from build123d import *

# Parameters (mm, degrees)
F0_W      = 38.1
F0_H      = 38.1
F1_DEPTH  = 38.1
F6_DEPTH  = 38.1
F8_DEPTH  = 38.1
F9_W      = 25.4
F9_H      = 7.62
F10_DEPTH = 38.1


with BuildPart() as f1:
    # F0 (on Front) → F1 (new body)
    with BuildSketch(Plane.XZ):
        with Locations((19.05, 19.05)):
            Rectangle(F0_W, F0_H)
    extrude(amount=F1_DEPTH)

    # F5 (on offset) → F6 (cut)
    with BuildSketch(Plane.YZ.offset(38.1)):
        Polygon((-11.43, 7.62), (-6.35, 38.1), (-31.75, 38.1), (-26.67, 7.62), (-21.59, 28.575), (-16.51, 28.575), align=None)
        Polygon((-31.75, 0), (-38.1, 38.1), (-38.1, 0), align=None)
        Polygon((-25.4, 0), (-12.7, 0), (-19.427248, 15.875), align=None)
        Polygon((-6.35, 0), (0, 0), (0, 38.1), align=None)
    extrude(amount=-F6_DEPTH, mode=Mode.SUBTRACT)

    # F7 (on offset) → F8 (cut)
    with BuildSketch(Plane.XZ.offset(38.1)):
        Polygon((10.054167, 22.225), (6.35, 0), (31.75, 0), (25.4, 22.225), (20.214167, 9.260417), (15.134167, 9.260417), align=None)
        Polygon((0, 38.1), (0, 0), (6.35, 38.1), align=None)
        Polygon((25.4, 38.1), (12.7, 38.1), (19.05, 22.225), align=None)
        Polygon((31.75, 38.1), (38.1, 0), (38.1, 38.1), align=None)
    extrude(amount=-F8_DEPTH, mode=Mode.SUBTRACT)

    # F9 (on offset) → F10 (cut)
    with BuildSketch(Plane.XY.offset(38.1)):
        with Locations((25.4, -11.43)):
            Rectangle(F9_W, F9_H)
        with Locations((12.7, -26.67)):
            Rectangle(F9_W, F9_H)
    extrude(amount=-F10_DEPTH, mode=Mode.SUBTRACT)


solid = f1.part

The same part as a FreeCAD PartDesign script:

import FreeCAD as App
import Part
import Sketcher
Q = App.Units.Quantity

doc = App.newDocument("Part")
body = doc.addObject("PartDesign::Body", "Body")

# Sketch on XZ plane
sketch1 = body.newObject("Sketcher::SketchObject", "Sketch")
sketch1.AttachmentSupport = (doc.getObject("XZ_Plane"), [""])
sketch1.MapMode = "FlatFace"
sketch1.addGeometry([
    Part.LineSegment(App.Vector(0, 38, 0), App.Vector(0, 0, 0)),
    Part.LineSegment(App.Vector(0, 0, 0), App.Vector(38, 0, 0)),
    Part.LineSegment(App.Vector(38, 0, 0), App.Vector(38, 38, 0)),
    Part.LineSegment(App.Vector(38, 38, 0), App.Vector(0, 38, 0)),
], False)
sketch1.addConstraint([
    Sketcher.Constraint("Coincident", 0, 2, 1, 1),
    Sketcher.Constraint("Coincident", 1, 2, 2, 1),
    Sketcher.Constraint("Coincident", 2, 2, 3, 1),
    Sketcher.Constraint("Coincident", 3, 2, 0, 1),
    Sketcher.Constraint("Vertical", 0),
    Sketcher.Constraint("Horizontal", 1),
    Sketcher.Constraint("Vertical", 2),
    Sketcher.Constraint("Horizontal", 3),
    Sketcher.Constraint("Coincident", 0, 2, -1, 1),
    Sketcher.Constraint("Equal", 3, 0),
    Sketcher.Constraint("DistanceX", 1, 1, 1, 2, Q("1.5 in")),
])
pad1 = body.newObject("PartDesign::Pad", "Pad")
pad1.Profile = sketch1
pad1.Length = Q("1.5 in")

# Sketch on YZ plane
sketch2 = body.newObject("Sketcher::SketchObject", "Sketch001")
sketch2.AttachmentSupport = (doc.getObject("YZ_Plane"), [""])
sketch2.MapMode = "FlatFace"
sketch2.AttachmentOffset = App.Placement(App.Vector(0, 0, 1.5 * 25.4), App.Rotation())
sketch2.addGeometry([
    Part.LineSegment(App.Vector(-11, 8, 0), App.Vector(-6, 38, 0)),  # 0
    Part.LineSegment(App.Vector(-6, 38, 0), App.Vector(-32, 38, 0)),  # 1
    Part.LineSegment(App.Vector(-32, 38, 0), App.Vector(-27, 8, 0)),  # 2
    Part.LineSegment(App.Vector(-27, 8, 0), App.Vector(-22, 29, 0)),  # 3
    Part.LineSegment(App.Vector(-22, 29, 0), App.Vector(-17, 29, 0)),  # 4
    Part.LineSegment(App.Vector(-17, 29, 0), App.Vector(-11, 8, 0)),  # 5
    Part.LineSegment(App.Vector(-32, 0, 0), App.Vector(-38, 38, 0)),  # 6
    Part.LineSegment(App.Vector(-38, 38, 0), App.Vector(-38, 0, 0)),  # 7
    Part.LineSegment(App.Vector(-38, 0, 0), App.Vector(-32, 0, 0)),  # 8
    Part.LineSegment(App.Vector(-25, 0, 0), App.Vector(-13, 0, 0)),  # 9
    Part.LineSegment(App.Vector(-13, 0, 0), App.Vector(-19, 16, 0)),  # 10
    Part.LineSegment(App.Vector(-19, 16, 0), App.Vector(-25, 0, 0)),  # 11
    Part.LineSegment(App.Vector(-6, 0, 0), App.Vector(0, 0, 0)),  # 12
    Part.LineSegment(App.Vector(0, 0, 0), App.Vector(0, 38, 0)),  # 13
    Part.LineSegment(App.Vector(0, 38, 0), App.Vector(-6, 0, 0)),  # 14
], False)
sketch2.addConstraint([
    Sketcher.Constraint("Coincident", 0, 2, 1, 1),
    Sketcher.Constraint("Coincident", 1, 2, 2, 1),
    Sketcher.Constraint("Coincident", 2, 2, 3, 1),
    Sketcher.Constraint("Coincident", 3, 2, 4, 1),
    Sketcher.Constraint("Coincident", 4, 2, 5, 1),
    Sketcher.Constraint("Coincident", 5, 2, 0, 1),
    Sketcher.Constraint("Coincident", 6, 2, 7, 1),
    Sketcher.Constraint("Coincident", 7, 2, 8, 1),
    Sketcher.Constraint("Coincident", 8, 2, 6, 1),
    Sketcher.Constraint("Coincident", 9, 2, 10, 1),
    Sketcher.Constraint("Coincident", 10, 2, 11, 1),
    Sketcher.Constraint("Coincident", 11, 2, 9, 1),
    Sketcher.Constraint("Coincident", 12, 2, 13, 1),
    Sketcher.Constraint("Coincident", 13, 2, 14, 1),
    Sketcher.Constraint("Coincident", 14, 2, 12, 1),
    Sketcher.Constraint("Horizontal", 1),
    Sketcher.Constraint("Horizontal", 4),
    Sketcher.Constraint("Vertical", 7),
    Sketcher.Constraint("Horizontal", 8),
    Sketcher.Constraint("Horizontal", 9),
    Sketcher.Constraint("Horizontal", 12),
    Sketcher.Constraint("Vertical", 13),
    Sketcher.Constraint("Coincident", 12, 2, -1, 1),
    Sketcher.Constraint("PointOnObject", 7, 2, -1),
    Sketcher.Constraint("PointOnObject", 9, 2, -1),
    Sketcher.Constraint("Parallel", 2, 6),
    Sketcher.Constraint("Parallel", 0, 14),
    Sketcher.Constraint("Horizontal", 2, 2, 5, 2),
    Sketcher.Constraint("Horizontal", 1, 2, 6, 2),
    Sketcher.Constraint("Horizontal", 6, 2, 13, 2),
    Sketcher.Constraint("Vertical", 1, 2, 8, 2),
    Sketcher.Constraint("Vertical", 0, 2, 14, 2),
    Sketcher.Constraint("Equal", 8, 12),
    Sketcher.Constraint("Equal", 3, 5),
    Sketcher.Constraint("DistanceX", 1, 2, 1, 1, Q("1 in")),
    Sketcher.Constraint("DistanceX", 4, 1, 4, 2, Q("0.2 in")),
    Sketcher.Constraint("DistanceX", 9, 1, 9, 2, Q("0.5 in")),
    Sketcher.Constraint("DistanceY", 7, 2, 7, 1, Q("1.5 in")),
    Sketcher.Constraint("DistanceX", 11, 2, -1, 1, Q("1 in")),
    Sketcher.Constraint("DistanceX", 7, 2, 9, 2, Q("1 in")),
    Sketcher.Constraint("DistanceY", -1, 1, 2, 2, Q("0.3 in")),
    Sketcher.Constraint("DistanceY", 10, 2, 3, 2, Q("0.5 in")),
    Sketcher.Constraint("DistanceY", -1, 1, 3, 2, Q("1.125 in")),
    Sketcher.Constraint("Distance", 11, 16.961409),
])
pocket1 = body.newObject("PartDesign::Pocket", "Pocket")
pocket1.Profile = sketch2
pocket1.Length = Q("1.5 in")

# Sketch on XZ plane
sketch3 = body.newObject("Sketcher::SketchObject", "Sketch002")
sketch3.AttachmentSupport = (doc.getObject("XZ_Plane"), [""])
sketch3.MapMode = "FlatFace"
sketch3.AttachmentOffset = App.Placement(App.Vector(0, 0, 1.5 * 25.4), App.Rotation())
sketch3.addGeometry([
    Part.LineSegment(App.Vector(10, 22, 0), App.Vector(6, 0, 0)),  # 0
    Part.LineSegment(App.Vector(6, 0, 0), App.Vector(32, 0, 0)),  # 1
    Part.LineSegment(App.Vector(32, 0, 0), App.Vector(25, 22, 0)),  # 2
    Part.LineSegment(App.Vector(25, 22, 0), App.Vector(20, 9, 0)),  # 3
    Part.LineSegment(App.Vector(20, 9, 0), App.Vector(15, 9, 0)),  # 4
    Part.LineSegment(App.Vector(15, 9, 0), App.Vector(10, 22, 0)),  # 5
    Part.LineSegment(App.Vector(0, 38, 0), App.Vector(0, 0, 0)),  # 6
    Part.LineSegment(App.Vector(0, 0, 0), App.Vector(6, 38, 0)),  # 7
    Part.LineSegment(App.Vector(6, 38, 0), App.Vector(0, 38, 0)),  # 8
    Part.LineSegment(App.Vector(25, 38, 0), App.Vector(13, 38, 0)),  # 9
    Part.LineSegment(App.Vector(13, 38, 0), App.Vector(19, 22, 0)),  # 10
    Part.LineSegment(App.Vector(19, 22, 0), App.Vector(25, 38, 0)),  # 11
    Part.LineSegment(App.Vector(32, 38, 0), App.Vector(38, 0, 0)),  # 12
    Part.LineSegment(App.Vector(38, 0, 0), App.Vector(38, 38, 0)),  # 13
    Part.LineSegment(App.Vector(38, 38, 0), App.Vector(32, 38, 0)),  # 14
], False)
sketch3.addConstraint([
    Sketcher.Constraint("Coincident", 0, 2, 1, 1),
    Sketcher.Constraint("Coincident", 1, 2, 2, 1),
    Sketcher.Constraint("Coincident", 2, 2, 3, 1),
    Sketcher.Constraint("Coincident", 3, 2, 4, 1),
    Sketcher.Constraint("Coincident", 4, 2, 5, 1),
    Sketcher.Constraint("Coincident", 5, 2, 0, 1),
    Sketcher.Constraint("Coincident", 6, 2, 7, 1),
    Sketcher.Constraint("Coincident", 7, 2, 8, 1),
    Sketcher.Constraint("Coincident", 8, 2, 6, 1),
    Sketcher.Constraint("Coincident", 9, 2, 10, 1),
    Sketcher.Constraint("Coincident", 10, 2, 11, 1),
    Sketcher.Constraint("Coincident", 11, 2, 9, 1),
    Sketcher.Constraint("Coincident", 12, 2, 13, 1),
    Sketcher.Constraint("Coincident", 13, 2, 14, 1),
    Sketcher.Constraint("Coincident", 14, 2, 12, 1),
    Sketcher.Constraint("Horizontal", 1),
    Sketcher.Constraint("Horizontal", 4),
    Sketcher.Constraint("Vertical", 6),
    Sketcher.Constraint("Horizontal", 8),
    Sketcher.Constraint("Horizontal", 9),
    Sketcher.Constraint("Vertical", 13),
    Sketcher.Constraint("Horizontal", 14),
    Sketcher.Constraint("Coincident", 6, 2, -1, 1),
    Sketcher.Constraint("PointOnObject", 0, 2, -1),
    Sketcher.Constraint("PointOnObject", 12, 2, -1),
    Sketcher.Constraint("Parallel", 0, 7),
    Sketcher.Constraint("Parallel", 3, 11),
    Sketcher.Constraint("Horizontal", 2, 2, 5, 2),
    Sketcher.Constraint("Horizontal", 8, 2, 9, 2),
    Sketcher.Constraint("Horizontal", 5, 2, 10, 2),
    Sketcher.Constraint("Horizontal", 11, 2, 13, 2),
    Sketcher.Constraint("Vertical", 0, 2, 7, 2),
    Sketcher.Constraint("Vertical", 2, 2, 11, 2),
    Sketcher.Constraint("Vertical", 1, 2, 14, 2),
    Sketcher.Constraint("Equal", 8, 14),
    Sketcher.Constraint("Equal", 10, 11),
    Sketcher.Constraint("DistanceX", 1, 1, 1, 2, Q("1 in")),
    Sketcher.Constraint("DistanceX", 4, 2, 4, 1, Q("0.2 in")),
    Sketcher.Constraint("DistanceX", 9, 2, 9, 1, Q("0.5 in")),
    Sketcher.Constraint("DistanceY", 6, 2, 6, 1, Q("1.5 in")),
    Sketcher.Constraint("DistanceX", -1, 1, 2, 2, Q("1 in")),
    Sketcher.Constraint("DistanceX", 9, 2, 13, 2, Q("1 in")),
    Sketcher.Constraint("DistanceX", 5, 2, 4, 2, Q("0.2 in")),
    Sketcher.Constraint("DistanceY", -1, 1, 2, 2, Q("0.875 in")),
])
pocket2 = body.newObject("PartDesign::Pocket", "Pocket001")
pocket2.Profile = sketch3
pocket2.Length = Q("1.5 in")

# Sketch on XY plane
sketch4 = body.newObject("Sketcher::SketchObject", "Sketch003")
sketch4.AttachmentSupport = (doc.getObject("XY_Plane"), [""])
sketch4.MapMode = "FlatFace"
sketch4.AttachmentOffset = App.Placement(App.Vector(0, 0, 1.5 * 25.4), App.Rotation())
sketch4.addGeometry([
    Part.LineSegment(App.Vector(13, -8, 0), App.Vector(13, -15, 0)),  # 0
    Part.LineSegment(App.Vector(13, -15, 0), App.Vector(38, -15, 0)),  # 1
    Part.LineSegment(App.Vector(38, -15, 0), App.Vector(38, -8, 0)),  # 2
    Part.LineSegment(App.Vector(38, -8, 0), App.Vector(13, -8, 0)),  # 3
    Part.LineSegment(App.Vector(0, -23, 0), App.Vector(0, -30, 0)),  # 4
    Part.LineSegment(App.Vector(0, -30, 0), App.Vector(25, -30, 0)),  # 5
    Part.LineSegment(App.Vector(25, -30, 0), App.Vector(25, -23, 0)),  # 6
    Part.LineSegment(App.Vector(25, -23, 0), App.Vector(0, -23, 0)),  # 7
], False)
sketch4.addConstraint([
    Sketcher.Constraint("Coincident", 0, 2, 1, 1),
    Sketcher.Constraint("Coincident", 1, 2, 2, 1),
    Sketcher.Constraint("Coincident", 2, 2, 3, 1),
    Sketcher.Constraint("Coincident", 3, 2, 0, 1),
    Sketcher.Constraint("Coincident", 4, 2, 5, 1),
    Sketcher.Constraint("Coincident", 5, 2, 6, 1),
    Sketcher.Constraint("Coincident", 6, 2, 7, 1),
    Sketcher.Constraint("Coincident", 7, 2, 4, 1),
    Sketcher.Constraint("Vertical", 0),
    Sketcher.Constraint("Horizontal", 1),
    Sketcher.Constraint("Vertical", 2),
    Sketcher.Constraint("Horizontal", 3),
    Sketcher.Constraint("Vertical", 4),
    Sketcher.Constraint("Horizontal", 5),
    Sketcher.Constraint("Vertical", 6),
    Sketcher.Constraint("Horizontal", 7),
    Sketcher.Constraint("PointOnObject", 4, 2, -2),
    Sketcher.Constraint("Equal", 3, 5),
    Sketcher.Constraint("Equal", 2, 4),
    Sketcher.Constraint("DistanceX", 1, 1, 1, 2, Q("1 in")),
    Sketcher.Constraint("DistanceY", 0, 2, 0, 1, Q("0.3 in")),
    Sketcher.Constraint("DistanceX", -1, 1, 0, 2, Q("0.5 in")),
    Sketcher.Constraint("DistanceY", 0, 2, -1, 1, Q("0.6 in")),
    Sketcher.Constraint("DistanceY", 4, 2, -1, 1, Q("1.2 in")),
])
pocket3 = body.newObject("PartDesign::Pocket", "Pocket002")
pocket3.Profile = sketch4
pocket3.Length = Q("1.5 in")

doc.recompute()
